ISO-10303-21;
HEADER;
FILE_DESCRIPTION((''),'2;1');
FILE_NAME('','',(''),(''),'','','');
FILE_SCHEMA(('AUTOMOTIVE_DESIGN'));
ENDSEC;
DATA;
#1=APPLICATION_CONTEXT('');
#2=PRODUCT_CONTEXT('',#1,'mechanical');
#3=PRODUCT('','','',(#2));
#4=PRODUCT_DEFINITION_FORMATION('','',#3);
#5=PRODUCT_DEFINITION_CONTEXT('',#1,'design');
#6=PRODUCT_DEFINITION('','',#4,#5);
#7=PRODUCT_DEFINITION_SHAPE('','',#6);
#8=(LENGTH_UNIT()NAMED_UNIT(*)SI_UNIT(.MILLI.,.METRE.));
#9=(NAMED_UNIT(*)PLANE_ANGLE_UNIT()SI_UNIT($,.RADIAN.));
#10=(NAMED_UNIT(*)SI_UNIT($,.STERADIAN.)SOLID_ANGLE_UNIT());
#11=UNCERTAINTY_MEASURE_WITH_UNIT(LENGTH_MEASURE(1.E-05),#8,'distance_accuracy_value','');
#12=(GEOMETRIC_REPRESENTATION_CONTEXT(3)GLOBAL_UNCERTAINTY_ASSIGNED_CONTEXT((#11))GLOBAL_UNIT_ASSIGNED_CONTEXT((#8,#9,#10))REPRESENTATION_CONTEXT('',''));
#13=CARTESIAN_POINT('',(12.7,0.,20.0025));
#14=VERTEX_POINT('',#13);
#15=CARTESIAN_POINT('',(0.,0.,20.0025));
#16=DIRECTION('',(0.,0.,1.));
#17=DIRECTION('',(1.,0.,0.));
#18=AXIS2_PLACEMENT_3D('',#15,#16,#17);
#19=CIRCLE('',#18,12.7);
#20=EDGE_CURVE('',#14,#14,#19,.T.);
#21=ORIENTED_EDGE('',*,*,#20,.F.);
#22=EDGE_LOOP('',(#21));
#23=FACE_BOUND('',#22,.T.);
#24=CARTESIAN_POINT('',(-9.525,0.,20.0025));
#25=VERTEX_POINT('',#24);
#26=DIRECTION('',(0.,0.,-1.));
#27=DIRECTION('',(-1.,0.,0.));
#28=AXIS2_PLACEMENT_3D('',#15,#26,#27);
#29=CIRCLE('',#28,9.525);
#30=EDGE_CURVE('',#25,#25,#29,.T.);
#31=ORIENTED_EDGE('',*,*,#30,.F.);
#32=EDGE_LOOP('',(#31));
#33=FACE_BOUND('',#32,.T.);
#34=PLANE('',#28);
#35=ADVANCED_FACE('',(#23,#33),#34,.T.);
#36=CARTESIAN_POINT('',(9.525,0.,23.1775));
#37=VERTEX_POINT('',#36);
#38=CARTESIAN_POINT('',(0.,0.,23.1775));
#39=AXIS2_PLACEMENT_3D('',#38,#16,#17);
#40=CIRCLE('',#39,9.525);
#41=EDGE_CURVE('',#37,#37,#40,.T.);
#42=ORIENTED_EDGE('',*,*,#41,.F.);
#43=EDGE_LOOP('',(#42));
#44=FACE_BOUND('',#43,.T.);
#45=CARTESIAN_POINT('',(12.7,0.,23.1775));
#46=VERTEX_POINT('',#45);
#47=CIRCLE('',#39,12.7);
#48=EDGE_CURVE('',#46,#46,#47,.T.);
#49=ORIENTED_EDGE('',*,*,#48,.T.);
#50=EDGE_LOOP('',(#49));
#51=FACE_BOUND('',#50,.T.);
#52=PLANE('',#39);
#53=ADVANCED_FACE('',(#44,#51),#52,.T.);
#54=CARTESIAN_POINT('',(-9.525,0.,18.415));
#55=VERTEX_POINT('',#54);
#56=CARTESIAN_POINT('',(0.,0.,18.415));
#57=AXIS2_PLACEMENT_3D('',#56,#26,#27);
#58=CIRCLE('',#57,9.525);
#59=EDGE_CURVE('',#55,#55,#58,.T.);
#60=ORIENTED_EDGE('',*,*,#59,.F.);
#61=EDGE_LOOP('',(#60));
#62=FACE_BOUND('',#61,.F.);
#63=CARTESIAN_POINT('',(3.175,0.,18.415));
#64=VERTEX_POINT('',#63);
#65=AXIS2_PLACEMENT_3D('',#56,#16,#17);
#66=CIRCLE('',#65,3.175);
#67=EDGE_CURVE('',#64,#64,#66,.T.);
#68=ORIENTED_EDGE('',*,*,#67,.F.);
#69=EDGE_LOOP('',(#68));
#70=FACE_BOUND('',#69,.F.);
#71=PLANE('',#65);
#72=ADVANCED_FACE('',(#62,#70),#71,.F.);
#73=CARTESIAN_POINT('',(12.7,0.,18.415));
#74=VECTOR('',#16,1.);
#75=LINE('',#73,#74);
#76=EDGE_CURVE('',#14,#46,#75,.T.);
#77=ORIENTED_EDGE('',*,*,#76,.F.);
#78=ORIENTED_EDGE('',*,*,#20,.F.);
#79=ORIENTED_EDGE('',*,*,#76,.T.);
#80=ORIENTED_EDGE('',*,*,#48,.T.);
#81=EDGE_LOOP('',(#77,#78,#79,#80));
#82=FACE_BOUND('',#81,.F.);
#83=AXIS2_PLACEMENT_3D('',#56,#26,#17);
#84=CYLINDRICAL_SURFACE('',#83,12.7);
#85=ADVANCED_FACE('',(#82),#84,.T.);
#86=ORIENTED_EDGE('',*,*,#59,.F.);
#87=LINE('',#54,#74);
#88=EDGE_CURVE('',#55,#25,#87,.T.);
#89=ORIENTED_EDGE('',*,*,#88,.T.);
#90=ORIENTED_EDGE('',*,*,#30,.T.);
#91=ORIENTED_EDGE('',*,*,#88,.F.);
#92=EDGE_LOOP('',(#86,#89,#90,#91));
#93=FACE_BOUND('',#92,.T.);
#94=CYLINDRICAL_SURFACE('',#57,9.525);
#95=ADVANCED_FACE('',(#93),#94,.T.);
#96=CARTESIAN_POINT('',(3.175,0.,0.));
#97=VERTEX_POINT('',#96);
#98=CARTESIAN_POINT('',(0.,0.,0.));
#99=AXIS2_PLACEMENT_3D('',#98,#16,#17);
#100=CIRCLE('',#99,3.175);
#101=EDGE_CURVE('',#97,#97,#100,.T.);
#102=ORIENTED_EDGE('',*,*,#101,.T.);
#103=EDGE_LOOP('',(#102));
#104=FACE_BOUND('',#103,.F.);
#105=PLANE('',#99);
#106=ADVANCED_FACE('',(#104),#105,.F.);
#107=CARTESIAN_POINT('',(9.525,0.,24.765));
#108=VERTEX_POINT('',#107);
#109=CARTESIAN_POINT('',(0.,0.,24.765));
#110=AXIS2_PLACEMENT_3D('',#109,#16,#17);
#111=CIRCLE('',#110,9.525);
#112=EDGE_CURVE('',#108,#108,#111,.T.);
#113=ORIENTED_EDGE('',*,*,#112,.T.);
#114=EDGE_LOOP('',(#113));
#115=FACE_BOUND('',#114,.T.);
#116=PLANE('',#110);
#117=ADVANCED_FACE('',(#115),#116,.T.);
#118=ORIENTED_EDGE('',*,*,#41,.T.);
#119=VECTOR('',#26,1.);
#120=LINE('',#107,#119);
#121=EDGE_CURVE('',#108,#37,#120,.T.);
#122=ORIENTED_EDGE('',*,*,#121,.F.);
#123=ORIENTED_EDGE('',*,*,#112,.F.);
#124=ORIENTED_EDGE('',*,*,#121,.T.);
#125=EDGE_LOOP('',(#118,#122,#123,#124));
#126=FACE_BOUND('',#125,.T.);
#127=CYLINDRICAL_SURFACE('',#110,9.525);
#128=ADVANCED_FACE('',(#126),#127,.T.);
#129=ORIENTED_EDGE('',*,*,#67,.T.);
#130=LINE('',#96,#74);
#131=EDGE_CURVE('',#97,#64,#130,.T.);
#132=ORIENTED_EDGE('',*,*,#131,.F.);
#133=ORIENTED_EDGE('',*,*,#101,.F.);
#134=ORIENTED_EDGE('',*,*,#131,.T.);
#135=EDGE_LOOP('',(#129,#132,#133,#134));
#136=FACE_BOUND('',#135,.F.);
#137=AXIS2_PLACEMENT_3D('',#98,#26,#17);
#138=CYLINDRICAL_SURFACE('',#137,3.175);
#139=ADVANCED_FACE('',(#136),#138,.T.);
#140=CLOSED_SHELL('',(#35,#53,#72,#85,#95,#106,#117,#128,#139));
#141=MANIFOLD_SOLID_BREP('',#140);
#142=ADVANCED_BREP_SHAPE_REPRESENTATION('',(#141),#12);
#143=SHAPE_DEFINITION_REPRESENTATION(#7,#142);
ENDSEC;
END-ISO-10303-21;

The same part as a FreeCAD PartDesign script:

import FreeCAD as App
import Part
import Sketcher
from FreeCAD import Vector
Q = App.Units.Quantity

doc = App.newDocument("Part")
params = doc.addObject("Spreadsheet::Sheet", "Params")
for row, (alias, value) in enumerate([
    ("sketch1_diameter", "0.25 in"),
    ("pad1_length", "0.725 in"),
    ("sketch2_diameter", "1 in"),
    ("pad2_length", "0.25 in"),
    ("sketch3_diameter", "1 in"),
    ("sketch3_diameter2", "0.75 in"),
    ("pocket1_length", "0.0625 in"),
    ("sketch4_diameter", "1 in"),
    ("sketch4_diameter2", "0.75 in"),
    ("pocket2_length", "0.0625 in"),
], start=1):
    params.set(f"A{row}", alias)
    params.set(f"B{row}", "=" + value)
    params.setAlias(f"B{row}", alias)

body = doc.addObject("PartDesign::Body", "Body")

# Sketch on XY plane
sketch1 = doc.addObject("Sketcher::SketchObject", "Sketch")
body.addObject(sketch1)
sketch1.AttachmentSupport = (doc.XY_Plane, [""])
sketch1.MapMode = "FlatFace"
sketch1.addGeometry(Part.Circle(Vector(0, 0, 0), Vector(0, 0, 1), 3.2), False)
sketch1.addConstraint([
    Sketcher.Constraint("Coincident", 0, 3, -1, 1),
    Sketcher.Constraint("Diameter", 0, Q("0.25 in")),
])
sketch1.setExpression("Constraints[1]", "Params.sketch1_diameter")
pad1 = doc.addObject("PartDesign::Pad", "Pad")
body.addObject(pad1)
pad1.Profile = sketch1
pad1.setExpression("Length", "Params.pad1_length")

# Sketch on XY plane
sketch2 = doc.addObject("Sketcher::SketchObject", "Sketch001")
body.addObject(sketch2)
sketch2.AttachmentSupport = (doc.XY_Plane, [""])
sketch2.MapMode = "FlatFace"
sketch2.AttachmentOffset = App.Placement(Vector(0, 0, 0.725 * 25.4), App.Rotation())
sketch2.addGeometry(Part.Circle(Vector(0, 0, 0), Vector(0, 0, 1), 13), False)
sketch2.addConstraint([
    Sketcher.Constraint("Coincident", 0, 3, -1, 1),
    Sketcher.Constraint("Diameter", 0, Q("1 in")),
])
sketch2.setExpression("Constraints[1]", "Params.sketch2_diameter")
pad2 = doc.addObject("PartDesign::Pad", "Pad001")
body.addObject(pad2)
pad2.Profile = sketch2
pad2.setExpression("Length", "Params.pad2_length")

# Sketch on XY plane
sketch3 = doc.addObject("Sketcher::SketchObject", "Sketch002")
body.addObject(sketch3)
sketch3.AttachmentSupport = (doc.XY_Plane, [""])
sketch3.MapMode = "FlatFace"
sketch3.AttachmentOffset = App.Placement(Vector(0, 0, 0.975 * 25.4), App.Rotation())
sketch3.addGeometry([
    Part.Circle(Vector(0, 0, 0), Vector(0, 0, 1), 13),
    Part.Circle(Vector(0, 0, 0), Vector(0, 0, 1), 10),
], False)
sketch3.addConstraint([
    Sketcher.Constraint("Coincident", 0, 3, -1, 1),
    Sketcher.Constraint("Coincident", 1, 3, -1, 1),
    Sketcher.Constraint("Diameter", 0, Q("1 in")),
    Sketcher.Constraint("Diameter", 1, Q("0.75 in")),
])
sketch3.setExpression("Constraints[2]", "Params.sketch3_diameter")
sketch3.setExpression("Constraints[3]", "Params.sketch3_diameter2")
pocket1 = doc.addObject("PartDesign::Pocket", "Pocket")
body.addObject(pocket1)
pocket1.Profile = sketch3
pocket1.setExpression("Length", "Params.pocket1_length")

# Sketch on XY plane
sketch4 = doc.addObject("Sketcher::SketchObject", "Sketch003")
body.addObject(sketch4)
sketch4.AttachmentSupport = (doc.XY_Plane, [""])
sketch4.MapMode = "FlatFace"
sketch4.AttachmentOffset = App.Placement(Vector(0, 0, 0.725 * 25.4), App.Rotation())
sketch4.addGeometry([
    Part.Circle(Vector(0, 0, 0), Vector(0, 0, 1), 13),
    Part.Circle(Vector(0, 0, 0), Vector(0, 0, 1), 10),
], False)
sketch4.addConstraint([
    Sketcher.Constraint("Coincident", 0, 3, -1, 1),
    Sketcher.Constraint("Coincident", 1, 3, -1, 1),
    Sketcher.Constraint("Diameter", 0, Q("1 in")),
    Sketcher.Constraint("Diameter", 1, Q("0.75 in")),
])
sketch4.setExpression("Constraints[2]", "Params.sketch4_diameter")
sketch4.setExpression("Constraints[3]", "Params.sketch4_diameter2")
pocket2 = doc.addObject("PartDesign::Pocket", "Pocket001")
body.addObject(pocket2)
pocket2.Profile = sketch4
pocket2.setExpression("Length", "Params.pocket2_length")
pocket2.Reversed = True

doc.recompute()
